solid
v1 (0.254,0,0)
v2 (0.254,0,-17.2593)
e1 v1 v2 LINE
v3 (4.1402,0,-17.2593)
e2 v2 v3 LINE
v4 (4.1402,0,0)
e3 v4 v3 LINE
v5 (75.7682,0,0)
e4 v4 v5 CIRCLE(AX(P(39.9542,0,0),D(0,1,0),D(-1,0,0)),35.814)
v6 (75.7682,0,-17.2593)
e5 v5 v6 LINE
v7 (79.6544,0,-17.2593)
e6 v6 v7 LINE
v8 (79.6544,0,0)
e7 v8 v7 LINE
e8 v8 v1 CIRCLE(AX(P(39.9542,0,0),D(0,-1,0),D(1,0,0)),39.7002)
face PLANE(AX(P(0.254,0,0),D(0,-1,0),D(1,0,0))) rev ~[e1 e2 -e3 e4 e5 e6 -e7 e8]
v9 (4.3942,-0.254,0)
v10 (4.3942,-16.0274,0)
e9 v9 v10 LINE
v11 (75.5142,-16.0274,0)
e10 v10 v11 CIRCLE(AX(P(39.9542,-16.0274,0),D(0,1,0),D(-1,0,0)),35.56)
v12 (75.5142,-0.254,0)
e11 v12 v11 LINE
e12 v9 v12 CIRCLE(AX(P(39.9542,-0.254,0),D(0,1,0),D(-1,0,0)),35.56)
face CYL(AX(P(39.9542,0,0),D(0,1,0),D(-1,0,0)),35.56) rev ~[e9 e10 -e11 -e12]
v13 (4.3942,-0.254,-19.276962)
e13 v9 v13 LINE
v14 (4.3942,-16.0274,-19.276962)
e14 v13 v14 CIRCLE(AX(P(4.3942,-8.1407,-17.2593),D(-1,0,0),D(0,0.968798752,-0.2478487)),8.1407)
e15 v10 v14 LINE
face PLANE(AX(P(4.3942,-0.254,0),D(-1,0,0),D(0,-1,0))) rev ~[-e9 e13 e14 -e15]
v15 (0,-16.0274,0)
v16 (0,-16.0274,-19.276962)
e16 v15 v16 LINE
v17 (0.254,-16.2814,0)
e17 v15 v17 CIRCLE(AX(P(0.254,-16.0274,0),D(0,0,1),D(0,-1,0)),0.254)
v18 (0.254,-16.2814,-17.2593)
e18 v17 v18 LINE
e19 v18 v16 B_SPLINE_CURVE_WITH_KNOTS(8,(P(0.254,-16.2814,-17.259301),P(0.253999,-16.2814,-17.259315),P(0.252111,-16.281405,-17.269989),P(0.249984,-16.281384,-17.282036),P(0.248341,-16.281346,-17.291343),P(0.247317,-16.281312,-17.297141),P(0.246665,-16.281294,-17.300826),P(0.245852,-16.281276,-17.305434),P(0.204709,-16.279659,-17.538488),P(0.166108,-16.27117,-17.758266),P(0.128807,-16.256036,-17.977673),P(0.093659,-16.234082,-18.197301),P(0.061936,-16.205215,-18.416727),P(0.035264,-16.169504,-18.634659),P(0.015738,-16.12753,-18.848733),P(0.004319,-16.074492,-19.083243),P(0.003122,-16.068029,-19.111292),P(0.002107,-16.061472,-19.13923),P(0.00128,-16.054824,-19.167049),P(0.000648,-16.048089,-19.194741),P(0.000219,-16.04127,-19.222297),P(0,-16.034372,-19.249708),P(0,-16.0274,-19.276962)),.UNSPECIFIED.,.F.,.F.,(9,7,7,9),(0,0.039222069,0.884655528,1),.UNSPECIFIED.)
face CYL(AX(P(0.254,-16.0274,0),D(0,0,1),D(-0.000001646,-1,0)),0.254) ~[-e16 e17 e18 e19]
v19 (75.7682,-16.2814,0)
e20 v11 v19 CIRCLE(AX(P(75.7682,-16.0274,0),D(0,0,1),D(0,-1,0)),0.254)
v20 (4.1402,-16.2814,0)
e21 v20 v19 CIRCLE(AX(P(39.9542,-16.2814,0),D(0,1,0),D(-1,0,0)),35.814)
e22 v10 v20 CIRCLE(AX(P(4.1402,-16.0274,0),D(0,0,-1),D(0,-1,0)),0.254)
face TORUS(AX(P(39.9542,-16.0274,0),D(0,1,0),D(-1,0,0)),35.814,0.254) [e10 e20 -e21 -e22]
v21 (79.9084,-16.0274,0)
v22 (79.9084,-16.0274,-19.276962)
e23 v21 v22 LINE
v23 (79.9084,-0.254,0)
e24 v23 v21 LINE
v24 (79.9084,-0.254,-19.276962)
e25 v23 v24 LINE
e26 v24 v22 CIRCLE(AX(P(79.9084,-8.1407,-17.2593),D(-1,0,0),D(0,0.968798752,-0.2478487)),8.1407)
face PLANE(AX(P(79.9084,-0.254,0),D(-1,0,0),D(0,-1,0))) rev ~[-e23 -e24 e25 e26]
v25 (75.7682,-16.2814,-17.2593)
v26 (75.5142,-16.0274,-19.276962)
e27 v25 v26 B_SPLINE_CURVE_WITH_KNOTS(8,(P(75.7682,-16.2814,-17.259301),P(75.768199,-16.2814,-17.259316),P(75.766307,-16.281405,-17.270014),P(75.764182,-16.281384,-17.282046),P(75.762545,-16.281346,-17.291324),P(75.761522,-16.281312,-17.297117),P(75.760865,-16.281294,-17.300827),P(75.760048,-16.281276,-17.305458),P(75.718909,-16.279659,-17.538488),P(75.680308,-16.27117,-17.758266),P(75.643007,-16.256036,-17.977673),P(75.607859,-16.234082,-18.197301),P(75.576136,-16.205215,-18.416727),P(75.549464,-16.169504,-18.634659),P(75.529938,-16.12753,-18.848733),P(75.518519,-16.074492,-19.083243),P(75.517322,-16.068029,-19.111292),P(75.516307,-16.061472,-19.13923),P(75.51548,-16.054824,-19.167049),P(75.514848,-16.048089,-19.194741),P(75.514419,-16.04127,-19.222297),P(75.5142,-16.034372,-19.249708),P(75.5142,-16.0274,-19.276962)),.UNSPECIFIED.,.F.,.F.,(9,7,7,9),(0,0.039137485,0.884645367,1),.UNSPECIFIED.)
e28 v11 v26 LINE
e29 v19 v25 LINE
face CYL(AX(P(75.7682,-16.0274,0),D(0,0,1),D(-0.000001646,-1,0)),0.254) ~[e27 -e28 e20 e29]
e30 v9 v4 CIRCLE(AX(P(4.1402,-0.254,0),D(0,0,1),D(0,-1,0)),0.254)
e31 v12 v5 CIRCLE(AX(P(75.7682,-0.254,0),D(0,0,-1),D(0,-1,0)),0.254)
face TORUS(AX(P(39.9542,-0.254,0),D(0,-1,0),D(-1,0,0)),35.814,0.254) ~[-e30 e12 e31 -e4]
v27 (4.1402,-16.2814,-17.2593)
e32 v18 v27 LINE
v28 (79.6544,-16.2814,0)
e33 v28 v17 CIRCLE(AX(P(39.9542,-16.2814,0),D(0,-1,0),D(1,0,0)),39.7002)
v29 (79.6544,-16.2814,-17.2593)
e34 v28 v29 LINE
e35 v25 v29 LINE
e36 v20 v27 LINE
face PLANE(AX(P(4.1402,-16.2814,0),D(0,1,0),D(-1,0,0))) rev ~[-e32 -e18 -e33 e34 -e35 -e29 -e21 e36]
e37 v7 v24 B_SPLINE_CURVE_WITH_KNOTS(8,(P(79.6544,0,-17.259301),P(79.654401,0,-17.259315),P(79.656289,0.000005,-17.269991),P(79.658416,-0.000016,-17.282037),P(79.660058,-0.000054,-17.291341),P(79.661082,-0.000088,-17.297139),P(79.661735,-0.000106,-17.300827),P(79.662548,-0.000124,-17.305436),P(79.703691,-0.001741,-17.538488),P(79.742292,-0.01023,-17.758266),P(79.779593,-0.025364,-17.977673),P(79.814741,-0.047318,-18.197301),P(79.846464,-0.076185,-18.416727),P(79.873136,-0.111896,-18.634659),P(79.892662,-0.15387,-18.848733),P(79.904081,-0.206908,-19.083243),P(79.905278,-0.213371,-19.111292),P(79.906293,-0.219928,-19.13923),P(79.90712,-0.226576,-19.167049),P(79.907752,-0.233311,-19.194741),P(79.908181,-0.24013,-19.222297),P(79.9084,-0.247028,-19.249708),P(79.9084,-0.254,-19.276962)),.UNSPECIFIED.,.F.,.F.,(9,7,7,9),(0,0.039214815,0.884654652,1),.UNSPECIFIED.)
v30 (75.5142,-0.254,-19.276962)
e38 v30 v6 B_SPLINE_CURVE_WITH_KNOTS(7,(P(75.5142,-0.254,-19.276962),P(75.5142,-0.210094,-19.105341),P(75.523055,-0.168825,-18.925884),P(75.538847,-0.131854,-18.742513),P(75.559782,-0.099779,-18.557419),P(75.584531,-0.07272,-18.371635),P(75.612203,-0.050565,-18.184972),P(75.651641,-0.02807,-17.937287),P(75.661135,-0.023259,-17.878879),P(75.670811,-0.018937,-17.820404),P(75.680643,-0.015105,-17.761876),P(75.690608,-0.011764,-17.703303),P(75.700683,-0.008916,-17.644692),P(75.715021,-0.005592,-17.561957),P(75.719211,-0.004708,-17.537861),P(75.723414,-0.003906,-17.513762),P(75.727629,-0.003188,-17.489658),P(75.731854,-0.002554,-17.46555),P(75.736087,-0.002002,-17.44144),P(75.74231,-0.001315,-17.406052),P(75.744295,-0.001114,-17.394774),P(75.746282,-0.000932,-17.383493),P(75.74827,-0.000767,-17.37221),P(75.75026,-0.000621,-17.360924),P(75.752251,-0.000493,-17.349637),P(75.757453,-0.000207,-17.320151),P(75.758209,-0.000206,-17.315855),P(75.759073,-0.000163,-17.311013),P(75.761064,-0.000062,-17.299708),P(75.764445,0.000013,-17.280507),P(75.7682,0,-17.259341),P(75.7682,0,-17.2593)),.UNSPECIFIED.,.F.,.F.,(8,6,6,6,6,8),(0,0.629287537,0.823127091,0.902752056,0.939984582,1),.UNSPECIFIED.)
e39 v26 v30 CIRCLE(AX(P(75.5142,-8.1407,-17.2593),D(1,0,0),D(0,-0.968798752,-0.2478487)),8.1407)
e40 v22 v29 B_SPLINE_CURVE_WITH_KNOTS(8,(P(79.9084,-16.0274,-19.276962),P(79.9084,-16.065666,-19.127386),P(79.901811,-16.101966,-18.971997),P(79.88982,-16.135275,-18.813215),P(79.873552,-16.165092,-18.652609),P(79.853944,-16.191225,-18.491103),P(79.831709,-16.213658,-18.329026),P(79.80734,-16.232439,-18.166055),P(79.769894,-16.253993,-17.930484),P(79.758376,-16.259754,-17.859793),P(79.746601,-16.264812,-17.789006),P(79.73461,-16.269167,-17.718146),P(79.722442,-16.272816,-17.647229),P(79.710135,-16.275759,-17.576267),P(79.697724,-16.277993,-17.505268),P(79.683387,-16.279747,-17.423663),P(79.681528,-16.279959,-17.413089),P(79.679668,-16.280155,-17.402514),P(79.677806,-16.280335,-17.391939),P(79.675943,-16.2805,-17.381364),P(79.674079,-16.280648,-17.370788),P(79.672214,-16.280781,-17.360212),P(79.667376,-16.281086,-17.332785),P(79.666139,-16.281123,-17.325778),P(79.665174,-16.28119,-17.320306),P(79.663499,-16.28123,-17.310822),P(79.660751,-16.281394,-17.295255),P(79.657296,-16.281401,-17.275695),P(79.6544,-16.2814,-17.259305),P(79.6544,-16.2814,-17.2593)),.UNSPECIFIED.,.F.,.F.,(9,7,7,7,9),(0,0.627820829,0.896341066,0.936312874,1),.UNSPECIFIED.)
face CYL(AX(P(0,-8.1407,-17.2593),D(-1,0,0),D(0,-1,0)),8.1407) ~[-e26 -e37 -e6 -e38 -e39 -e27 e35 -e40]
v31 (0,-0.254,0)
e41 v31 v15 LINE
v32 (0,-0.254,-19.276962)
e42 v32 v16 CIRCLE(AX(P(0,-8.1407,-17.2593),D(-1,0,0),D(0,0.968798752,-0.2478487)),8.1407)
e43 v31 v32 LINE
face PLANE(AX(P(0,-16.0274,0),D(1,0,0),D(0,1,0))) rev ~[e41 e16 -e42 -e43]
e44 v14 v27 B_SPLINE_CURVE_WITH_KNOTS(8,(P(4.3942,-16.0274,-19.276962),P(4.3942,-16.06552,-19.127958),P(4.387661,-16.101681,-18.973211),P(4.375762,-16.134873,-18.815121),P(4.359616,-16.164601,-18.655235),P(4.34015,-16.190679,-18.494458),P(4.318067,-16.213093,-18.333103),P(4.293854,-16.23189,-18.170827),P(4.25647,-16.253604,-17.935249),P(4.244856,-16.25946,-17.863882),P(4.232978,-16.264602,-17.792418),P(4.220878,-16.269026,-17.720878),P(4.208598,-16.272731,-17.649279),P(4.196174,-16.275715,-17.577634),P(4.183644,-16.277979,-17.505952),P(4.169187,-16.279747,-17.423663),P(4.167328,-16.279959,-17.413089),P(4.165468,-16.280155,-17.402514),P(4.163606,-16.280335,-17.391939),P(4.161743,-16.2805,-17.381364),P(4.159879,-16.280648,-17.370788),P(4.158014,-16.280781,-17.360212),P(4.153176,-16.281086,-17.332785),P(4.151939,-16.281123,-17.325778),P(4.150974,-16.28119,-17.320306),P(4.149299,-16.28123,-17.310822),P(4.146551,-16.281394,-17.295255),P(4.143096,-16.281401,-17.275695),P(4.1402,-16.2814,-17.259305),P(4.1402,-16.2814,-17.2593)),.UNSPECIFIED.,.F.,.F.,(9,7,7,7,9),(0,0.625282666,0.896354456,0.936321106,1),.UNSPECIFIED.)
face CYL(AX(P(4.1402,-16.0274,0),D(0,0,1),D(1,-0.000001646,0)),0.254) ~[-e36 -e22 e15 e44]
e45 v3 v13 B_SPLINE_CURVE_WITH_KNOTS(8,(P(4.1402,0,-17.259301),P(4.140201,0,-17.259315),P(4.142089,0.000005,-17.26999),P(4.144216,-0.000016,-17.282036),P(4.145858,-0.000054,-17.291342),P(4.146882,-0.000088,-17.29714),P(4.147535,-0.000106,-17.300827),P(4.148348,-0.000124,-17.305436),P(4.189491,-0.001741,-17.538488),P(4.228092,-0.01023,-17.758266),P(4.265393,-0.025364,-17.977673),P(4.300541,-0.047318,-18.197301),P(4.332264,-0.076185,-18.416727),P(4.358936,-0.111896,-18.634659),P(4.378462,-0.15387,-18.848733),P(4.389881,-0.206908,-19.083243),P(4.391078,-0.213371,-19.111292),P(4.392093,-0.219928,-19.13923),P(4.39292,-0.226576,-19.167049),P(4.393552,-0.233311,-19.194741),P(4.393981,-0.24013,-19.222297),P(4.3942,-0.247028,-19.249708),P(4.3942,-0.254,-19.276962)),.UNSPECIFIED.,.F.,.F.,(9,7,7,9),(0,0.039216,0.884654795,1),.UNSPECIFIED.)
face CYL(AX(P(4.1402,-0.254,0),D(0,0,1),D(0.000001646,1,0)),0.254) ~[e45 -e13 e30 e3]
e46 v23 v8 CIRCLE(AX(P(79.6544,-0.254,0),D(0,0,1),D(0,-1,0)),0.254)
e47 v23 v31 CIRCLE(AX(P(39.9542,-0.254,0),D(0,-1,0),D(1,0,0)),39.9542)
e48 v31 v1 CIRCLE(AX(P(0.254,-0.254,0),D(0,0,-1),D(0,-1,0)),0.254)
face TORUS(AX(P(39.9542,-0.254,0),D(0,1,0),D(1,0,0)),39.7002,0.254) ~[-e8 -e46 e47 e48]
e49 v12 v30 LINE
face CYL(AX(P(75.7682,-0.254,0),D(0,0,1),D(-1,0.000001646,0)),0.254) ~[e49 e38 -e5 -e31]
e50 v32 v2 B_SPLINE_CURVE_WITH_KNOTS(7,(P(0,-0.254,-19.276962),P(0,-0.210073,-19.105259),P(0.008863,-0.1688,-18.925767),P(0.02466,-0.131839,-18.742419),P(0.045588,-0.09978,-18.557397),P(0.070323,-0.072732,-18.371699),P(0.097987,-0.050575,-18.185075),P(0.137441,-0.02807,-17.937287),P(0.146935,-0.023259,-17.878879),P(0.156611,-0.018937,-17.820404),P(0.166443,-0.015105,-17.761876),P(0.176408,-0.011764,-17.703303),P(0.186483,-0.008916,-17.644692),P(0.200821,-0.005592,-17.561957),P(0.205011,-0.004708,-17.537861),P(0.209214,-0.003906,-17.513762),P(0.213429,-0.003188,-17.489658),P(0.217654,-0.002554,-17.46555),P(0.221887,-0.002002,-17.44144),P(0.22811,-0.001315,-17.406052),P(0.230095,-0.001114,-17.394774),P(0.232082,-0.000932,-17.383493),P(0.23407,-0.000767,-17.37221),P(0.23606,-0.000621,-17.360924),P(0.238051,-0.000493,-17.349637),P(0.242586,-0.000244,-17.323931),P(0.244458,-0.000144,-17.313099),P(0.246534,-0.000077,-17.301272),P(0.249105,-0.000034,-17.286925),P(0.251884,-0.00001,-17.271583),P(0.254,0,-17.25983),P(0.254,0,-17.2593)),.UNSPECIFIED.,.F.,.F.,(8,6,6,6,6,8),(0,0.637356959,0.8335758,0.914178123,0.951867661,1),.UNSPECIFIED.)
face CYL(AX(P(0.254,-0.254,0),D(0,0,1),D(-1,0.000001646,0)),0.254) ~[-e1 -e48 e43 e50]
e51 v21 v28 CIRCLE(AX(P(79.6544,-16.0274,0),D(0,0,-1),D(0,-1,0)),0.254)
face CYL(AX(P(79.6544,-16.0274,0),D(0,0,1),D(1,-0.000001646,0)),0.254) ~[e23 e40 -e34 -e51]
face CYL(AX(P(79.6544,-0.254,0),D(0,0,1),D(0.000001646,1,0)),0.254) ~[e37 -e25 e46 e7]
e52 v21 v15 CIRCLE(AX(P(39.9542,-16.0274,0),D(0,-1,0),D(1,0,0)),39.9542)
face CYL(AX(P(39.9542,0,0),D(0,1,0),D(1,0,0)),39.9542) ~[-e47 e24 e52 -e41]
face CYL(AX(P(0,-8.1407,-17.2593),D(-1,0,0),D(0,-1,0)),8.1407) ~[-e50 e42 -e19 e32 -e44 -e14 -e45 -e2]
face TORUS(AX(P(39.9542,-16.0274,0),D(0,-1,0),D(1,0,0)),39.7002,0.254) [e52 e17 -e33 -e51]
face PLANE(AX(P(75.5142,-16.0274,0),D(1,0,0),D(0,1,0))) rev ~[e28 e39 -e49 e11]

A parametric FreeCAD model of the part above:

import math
import FreeCAD as App
import Part
import Sketcher
Q = App.Units.Quantity


def edges_at(feature, points):
    """Names of the edges that pass closest to the given points."""
    edges = feature.Shape.Edges
    near = lambda p: min(range(len(edges)), key=lambda i: edges[i].distToShape(Part.Vertex(*p))[0])
    return sorted({f"Edge{near(p) + 1}" for p in points})

doc = App.newDocument("Part")
body = doc.addObject("PartDesign::Body", "Body")

sketch1 = body.newObject("Sketcher::SketchObject", "Sketch")
sketch1.AttachmentSupport = (doc.getObject("XZ_Plane"), [""])
sketch1.MapMode = "FlatFace"
sketch1.addGeometry([
    Part.LineSegment(App.Vector(75.5, 0, 0), App.Vector(79.9, 0, 0)),
    Part.ArcOfCircle(Part.Circle(App.Vector(40, 0, 0), App.Vector(0, 0, 1), 40), math.radians(0), math.radians(180)),
    Part.LineSegment(App.Vector(0, 0, 0), App.Vector(4.4, 0, 0)),
    Part.ArcOfCircle(Part.Circle(App.Vector(40, 0, 0), App.Vector(0, 0, 1), 35.6), math.radians(0), math.radians(180)),
], False)
sketch1.addConstraint([
    Sketcher.Constraint("Coincident", 0, 2, 1, 1),
    Sketcher.Constraint("Coincident", 1, 2, 2, 1),
    Sketcher.Constraint("Coincident", 2, 2, 3, 2),
    Sketcher.Constraint("Coincident", 3, 1, 0, 1),
    Sketcher.Constraint("Horizontal", 0),
    Sketcher.Constraint("Horizontal", 2),
    Sketcher.Constraint("Coincident", 1, 2, -1, 1),
    Sketcher.Constraint("Coincident", 3, 3, 1, 3),
    Sketcher.Constraint("PointOnObject", 1, 3, -1),
    Sketcher.Constraint("PointOnObject", 0, 2, -1),
    Sketcher.Constraint("Radius", 3, Q("1.4 in")),
    Sketcher.Constraint("Radius", 1, Q("1.573 in")),
])
pad1 = body.newObject("PartDesign::Pad", "Pad")
pad1.Profile = sketch1
pad1.Length = Q("0.641 in")
doc.recompute()

fillet = body.newObject("PartDesign::Fillet", "Fillet")
fillet.Base = (pad1, edges_at(pad1, [
    (39.954, -16.281, 39.954),
    (39.954, -16.281, 35.56),
    (39.954, 0, 39.954),
    (39.954, 0, 35.56),
]))
fillet.Radius = Q("0.01 in")

sketch2 = body.newObject("Sketcher::SketchObject", "Sketch001")
sketch2.AttachmentSupport = (doc.getObject("XY_Plane"), [""])
sketch2.MapMode = "FlatFace"
sketch2.addGeometry([
    Part.ArcOfCircle(Part.Circle(App.Vector(0.25, -16.03, 0), App.Vector(0, 0, 1), 0.25), math.radians(-180), math.radians(-90)),
    Part.LineSegment(App.Vector(0, -16.03, 0), App.Vector(0, -0.25, 0)),
    Part.ArcOfCircle(Part.Circle(App.Vector(0.25, -0.25, 0), App.Vector(0, 0, 1), 0.25), math.radians(90), math.radians(180)),
    Part.LineSegment(App.Vector(0.25, 0, 0), App.Vector(4.14, 0, 0)),
    Part.ArcOfCircle(Part.Circle(App.Vector(4.14, -0.25, 0), App.Vector(0, 0, 1), 0.25), math.radians(0), math.radians(90)),
    Part.LineSegment(App.Vector(4.39, -0.25, 0), App.Vector(4.39, -16.03, 0)),
    Part.ArcOfCircle(Part.Circle(App.Vector(4.14, -16.03, 0), App.Vector(0, 0, 1), 0.25), math.radians(-90), math.radians(0)),
    Part.LineSegment(App.Vector(4.14, -16.28, 0), App.Vector(0.25, -16.28, 0)),
    Part.ArcOfCircle(Part.Circle(App.Vector(75.77, -0.25, 0), App.Vector(0, 0, 1), 0.25), math.radians(90), math.radians(180)),
    Part.LineSegment(App.Vector(75.77, 0, 0), App.Vector(79.65, 0, 0)),
    Part.ArcOfCircle(Part.Circle(App.Vector(79.65, -0.25, 0), App.Vector(0, 0, 1), 0.25), math.radians(0), math.radians(90)),
    Part.LineSegment(App.Vector(79.91, -0.25, 0), App.Vector(79.91, -16.03, 0)),
    Part.ArcOfCircle(Part.Circle(App.Vector(79.65, -16.03, 0), App.Vector(0, 0, 1), 0.25), math.radians(-90), math.radians(0)),
    Part.LineSegment(App.Vector(79.65, -16.28, 0), App.Vector(75.77, -16.28, 0)),
    Part.ArcOfCircle(Part.Circle(App.Vector(75.77, -16.03, 0), App.Vector(0, 0, 1), 0.25), math.radians(-180), math.radians(-90)),
    Part.LineSegment(App.Vector(75.51, -16.03, 0), App.Vector(75.51, -0.25, 0)),
], False)
sketch2.addConstraint([
    Sketcher.Constraint("Tangent", 0, 1, 1, 1),
    Sketcher.Constraint("Tangent", 1, 2, 2, 2),
    Sketcher.Constraint("Tangent", 2, 1, 3, 1),
    Sketcher.Constraint("Tangent", 3, 2, 4, 2),
    Sketcher.Constraint("Tangent", 4, 1, 5, 1),
    Sketcher.Constraint("Tangent", 5, 2, 6, 2),
    Sketcher.Constraint("Tangent", 6, 1, 7, 1),
    Sketcher.Constraint("Tangent", 7, 2, 0, 2),
    Sketcher.Constraint("Tangent", 8, 1, 9, 1),
    Sketcher.Constraint("Tangent", 9, 2, 10, 2),
    Sketcher.Constraint("Tangent", 10, 1, 11, 1),
    Sketcher.Constraint("Tangent", 11, 2, 12, 2),
    Sketcher.Constraint("Tangent", 12, 1, 13, 1),
    Sketcher.Constraint("Tangent", 13, 2, 14, 2),
    Sketcher.Constraint("Tangent", 14, 1, 15, 1),
    Sketcher.Constraint("Tangent", 15, 2, 8, 2),
    Sketcher.Constraint("Vertical", 1),
    Sketcher.Constraint("Horizontal", 3),
    Sketcher.Constraint("Vertical", 5),
    Sketcher.Constraint("Horizontal", 7),
    Sketcher.Constraint("Horizontal", 9),
    Sketcher.Constraint("Vertical", 11),
    Sketcher.Constraint("Horizontal", 13),
    Sketcher.Constraint("Vertical", 15),
    Sketcher.Constraint("Equal", 0, 2),
    Sketcher.Constraint("Equal", 2, 4),
    Sketcher.Constraint("Equal", 4, 6),
    Sketcher.Constraint("Equal", 6, 8),
    Sketcher.Constraint("Equal", 8, 10),
    Sketcher.Constraint("Equal", 10, 12),
    Sketcher.Constraint("Equal", 12, 14),
    Sketcher.Constraint("PointOnObject", 0, 1, -2),
    Sketcher.Constraint("PointOnObject", 2, 1, -1),
    Sketcher.Constraint("PointOnObject", 8, 1, -1),
    Sketcher.Constraint("Horizontal", 6, 3, 12, 3),
    Sketcher.Constraint("Equal", 7, 9),
    Sketcher.Constraint("Radius", 0, Q("0.01 in")),
    Sketcher.Constraint("DistanceX", 3, 1, 3, 2, Q("0.153 in")),
    Sketcher.Constraint("DistanceY", 1, 1, 1, 2, Q("0.621 in")),
    Sketcher.Constraint("DistanceX", 4, 3, 8, 3, Q("2.82 in")),
])
pad2 = body.newObject("PartDesign::Pad", "Pad001")
pad2.Profile = sketch2
pad2.Length = Q("1 in")
pad2.Reversed = True

sketch3 = body.newObject("Sketcher::SketchObject", "Sketch002")
sketch3.AttachmentSupport = (doc.getObject("YZ_Plane"), [""])
sketch3.MapMode = "FlatFace"
sketch3.addGeometry([
    Part.ArcOfCircle(Part.Circle(App.Vector(-8, -17, 0), App.Vector(0, 0, 1), 8), math.radians(180), math.radians(360)),
    Part.LineSegment(App.Vector(0, -17, 0), App.Vector(0, -27, 0)),
    Part.LineSegment(App.Vector(0, -27, 0), App.Vector(-16, -27, 0)),
    Part.LineSegment(App.Vector(-16, -27, 0), App.Vector(-16, -17, 0)),
], False)
sketch3.addConstraint([
    Sketcher.Constraint("Tangent", 0, 2, 1, 1),
    Sketcher.Constraint("Coincident", 1, 2, 2, 1),
    Sketcher.Constraint("Coincident", 2, 2, 3, 1),
    Sketcher.Constraint("Tangent", 3, 2, 0, 1),
    Sketcher.Constraint("Vertical", 1),
    Sketcher.Constraint("Horizontal", 2),
    Sketcher.Constraint("Vertical", 3),
    Sketcher.Constraint("PointOnObject", 0, 2, -2),
    Sketcher.Constraint("Radius", 0, Q("0.3205 in")),
    Sketcher.Constraint("DistanceY", 1, 2, 1, 1, Q("9.3111 mm")),
    Sketcher.Constraint("DistanceY", 0, 3, -1, 1, Q("0.6795 in")),
])
pocket1 = body.newObject("PartDesign::Pocket", "Pocket")
pocket1.Profile = sketch3
pocket1.Type = "ThroughAll"
pocket1.Reversed = True

doc.recompute()
